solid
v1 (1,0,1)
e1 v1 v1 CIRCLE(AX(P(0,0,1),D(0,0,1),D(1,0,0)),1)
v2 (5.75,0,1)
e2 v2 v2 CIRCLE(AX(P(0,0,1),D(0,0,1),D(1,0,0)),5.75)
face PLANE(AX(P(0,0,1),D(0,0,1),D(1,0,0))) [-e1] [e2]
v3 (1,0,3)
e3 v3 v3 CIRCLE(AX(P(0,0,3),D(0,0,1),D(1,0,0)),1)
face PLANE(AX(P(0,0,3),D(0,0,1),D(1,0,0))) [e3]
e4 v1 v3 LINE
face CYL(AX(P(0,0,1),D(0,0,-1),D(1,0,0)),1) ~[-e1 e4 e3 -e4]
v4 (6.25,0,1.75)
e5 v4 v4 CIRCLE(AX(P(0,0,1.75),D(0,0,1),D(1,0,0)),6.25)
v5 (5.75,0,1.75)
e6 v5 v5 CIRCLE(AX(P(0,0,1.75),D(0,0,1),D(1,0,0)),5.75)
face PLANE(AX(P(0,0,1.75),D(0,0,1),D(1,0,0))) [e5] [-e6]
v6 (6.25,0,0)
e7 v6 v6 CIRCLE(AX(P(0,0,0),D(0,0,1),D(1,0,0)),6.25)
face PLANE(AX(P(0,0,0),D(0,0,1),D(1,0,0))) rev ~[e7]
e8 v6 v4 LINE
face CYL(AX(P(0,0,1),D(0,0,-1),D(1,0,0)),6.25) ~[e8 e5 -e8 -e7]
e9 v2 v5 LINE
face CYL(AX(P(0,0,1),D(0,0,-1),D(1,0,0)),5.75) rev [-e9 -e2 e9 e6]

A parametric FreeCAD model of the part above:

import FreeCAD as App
import Part
import Sketcher
from FreeCAD import Vector

doc = App.newDocument("Part")
body = doc.addObject("PartDesign::Body", "Body")

sketch1 = body.newObject("Sketcher::SketchObject", "Sketch")
sketch1.AttachmentSupport = (doc.getObject("XY_Plane"), [""])
sketch1.MapMode = "FlatFace"
sketch1.addGeometry(Part.Circle(Vector(0, 0, 0), Vector(0, 0, 1), 6), False)
sketch1.addConstraint(Sketcher.Constraint("Coincident", 0, 3, -1, 1))
sketch1.addConstraint(Sketcher.Constraint("Diameter", 0, 12.5))
pad1 = body.newObject("PartDesign::Pad", "Pad")
pad1.Profile = sketch1
pad1.Length = 1

sketch2 = body.newObject("Sketcher::SketchObject", "Sketch001")
sketch2.AttachmentSupport = (doc.getObject("XY_Plane"), [""])
sketch2.MapMode = "FlatFace"
sketch2.AttachmentOffset = App.Placement(Vector(0, 0, 1), App.Rotation())
sketch2.addGeometry(Part.Circle(Vector(0, 0, 0), Vector(0, 0, 1), 6), False)
sketch2.addGeometry(Part.Circle(Vector(0, 0, 0), Vector(0, 0, 1), 6), False)
sketch2.addConstraint(Sketcher.Constraint("Coincident", 0, 3, -1, 1))
sketch2.addConstraint(Sketcher.Constraint("Coincident", 1, 3, -1, 1))
sketch2.addConstraint(Sketcher.Constraint("Diameter", 0, 12.5))
sketch2.addConstraint(Sketcher.Constraint("Diameter", 1, 11.5))
pad2 = body.newObject("PartDesign::Pad", "Pad001")
pad2.Profile = sketch2
pad2.Length = 0.75

sketch3 = body.newObject("Sketcher::SketchObject", "Sketch002")
sketch3.AttachmentSupport = (doc.getObject("XY_Plane"), [""])
sketch3.MapMode = "FlatFace"
sketch3.AttachmentOffset = App.Placement(Vector(0, 0, 1), App.Rotation())
sketch3.addGeometry(Part.Circle(Vector(0, 0, 0), Vector(0, 0, 1), 1), False)
sketch3.addConstraint(Sketcher.Constraint("Coincident", 0, 3, -1, 1))
sketch3.addConstraint(Sketcher.Constraint("Diameter", 0, 2.0))
pad3 = body.newObject("PartDesign::Pad", "Pad002")
pad3.Profile = sketch3
pad3.Length = 2

doc.recompute()
